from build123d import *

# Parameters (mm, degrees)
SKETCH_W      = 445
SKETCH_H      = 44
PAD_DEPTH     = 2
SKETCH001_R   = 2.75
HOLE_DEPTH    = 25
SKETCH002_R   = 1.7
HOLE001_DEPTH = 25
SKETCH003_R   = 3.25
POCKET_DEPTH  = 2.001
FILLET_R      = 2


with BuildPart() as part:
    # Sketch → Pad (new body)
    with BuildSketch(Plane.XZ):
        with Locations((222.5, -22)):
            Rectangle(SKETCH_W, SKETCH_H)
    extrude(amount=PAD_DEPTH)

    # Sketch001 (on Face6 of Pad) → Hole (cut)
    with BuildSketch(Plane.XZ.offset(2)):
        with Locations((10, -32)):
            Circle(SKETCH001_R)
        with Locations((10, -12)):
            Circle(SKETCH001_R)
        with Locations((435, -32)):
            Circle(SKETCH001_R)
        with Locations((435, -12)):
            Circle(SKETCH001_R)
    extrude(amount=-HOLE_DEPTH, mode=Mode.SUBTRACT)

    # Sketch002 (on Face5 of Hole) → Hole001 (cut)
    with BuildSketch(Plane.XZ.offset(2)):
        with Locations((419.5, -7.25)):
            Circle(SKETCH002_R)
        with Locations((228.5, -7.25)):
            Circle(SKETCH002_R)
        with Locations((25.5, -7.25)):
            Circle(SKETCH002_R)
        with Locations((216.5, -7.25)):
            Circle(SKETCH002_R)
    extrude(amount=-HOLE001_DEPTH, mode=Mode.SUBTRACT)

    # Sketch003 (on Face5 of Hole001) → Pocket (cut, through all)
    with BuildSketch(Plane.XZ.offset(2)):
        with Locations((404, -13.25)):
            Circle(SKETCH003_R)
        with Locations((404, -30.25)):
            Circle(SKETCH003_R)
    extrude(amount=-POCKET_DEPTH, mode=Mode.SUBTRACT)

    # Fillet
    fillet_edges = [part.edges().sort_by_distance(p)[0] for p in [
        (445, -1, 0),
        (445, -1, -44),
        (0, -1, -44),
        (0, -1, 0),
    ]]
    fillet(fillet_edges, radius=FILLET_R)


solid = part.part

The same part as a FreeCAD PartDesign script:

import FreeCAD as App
import Part
import Sketcher
Q = App.Units.Quantity


def edges_at(feature, points):
    """Names of the edges that pass closest to the given points."""
    edges = feature.Shape.Edges
    near = lambda p: min(range(len(edges)), key=lambda i: edges[i].distToShape(Part.Vertex(*p))[0])
    return sorted({f"Edge{near(p) + 1}" for p in points})

doc = App.newDocument("Part")
params = doc.addObject("Spreadsheet::Sheet", "Params")
for row, (alias, value) in enumerate([
    ("sketch1_width", "445 mm"),
    ("sketch1_height", "44 mm"),
    ("pad1_length", "2 mm"),
    ("sketch2_diameter", "5.5 mm"),
    ("pocket1_length", "25 mm"),
    ("sketch3_diameter", "3.4 mm"),
    ("pocket2_length", "25 mm"),
    ("sketch4_diameter", "6.5 mm"),
    ("fillet_radius", "2 mm"),
], start=1):
    params.set(f"A{row}", alias)
    params.set(f"B{row}", "=" + value)
    params.setAlias(f"B{row}", alias)

body = doc.addObject("PartDesign::Body", "Body")

sketch1 = body.newObject("Sketcher::SketchObject", "Sketch")
sketch1.AttachmentSupport = (doc.getObject("XZ_Plane"), [""])
sketch1.MapMode = "FlatFace"
sketch1.addGeometry([
    Part.LineSegment(App.Vector(0, 0, 0), App.Vector(0, -44, 0)),
    Part.LineSegment(App.Vector(0, -44, 0), App.Vector(445, -44, 0)),
    Part.LineSegment(App.Vector(445, -44, 0), App.Vector(445, 0, 0)),
    Part.LineSegment(App.Vector(445, 0, 0), App.Vector(0, 0, 0)),
], False)
sketch1.addConstraint([
    Sketcher.Constraint("Coincident", 0, 2, 1, 1),
    Sketcher.Constraint("Coincident", 1, 2, 2, 1),
    Sketcher.Constraint("Coincident", 2, 2, 3, 1),
    Sketcher.Constraint("Coincident", 3, 2, 0, 1),
    Sketcher.Constraint("Vertical", 0),
    Sketcher.Constraint("Horizontal", 1),
    Sketcher.Constraint("Vertical", 2),
    Sketcher.Constraint("Horizontal", 3),
    Sketcher.Constraint("Coincident", 3, 2, -1, 1),
    Sketcher.Constraint("DistanceX", 1, 1, 1, 2, Q("445 mm")),
    Sketcher.Constraint("DistanceY", 0, 2, 0, 1, Q("44 mm")),
])
sketch1.setExpression("Constraints[9]", "Params.sketch1_width")
sketch1.setExpression("Constraints[10]", "Params.sketch1_height")
pad1 = body.newObject("PartDesign::Pad", "Pad")
pad1.Profile = sketch1
pad1.setExpression("Length", "Params.pad1_length")

sketch2 = body.newObject("Sketcher::SketchObject", "Sketch001")
sketch2.AttachmentSupport = (doc.getObject("XZ_Plane"), [""])
sketch2.MapMode = "FlatFace"
sketch2.AttachmentOffset = App.Placement(App.Vector(0, 0, 2), App.Rotation())
sketch2.addGeometry([
    Part.Circle(App.Vector(10, -32, 0), App.Vector(0, 0, 1), 2.8),
    Part.Circle(App.Vector(10, -12, 0), App.Vector(0, 0, 1), 2.8),
    Part.Circle(App.Vector(435, -32, 0), App.Vector(0, 0, 1), 2.8),
    Part.Circle(App.Vector(435, -12, 0), App.Vector(0, 0, 1), 2.8),
], False)
sketch2.addConstraint([
    Sketcher.Constraint("Equal", 0, 1),
    Sketcher.Constraint("Equal", 1, 2),
    Sketcher.Constraint("Equal", 2, 3),
    Sketcher.Constraint("Horizontal", 0, 3, 2, 3),
    Sketcher.Constraint("Horizontal", 1, 3, 3, 3),
    Sketcher.Constraint("Vertical", 0, 3, 1, 3),
    Sketcher.Constraint("Vertical", 2, 3, 3, 3),
    Sketcher.Constraint("Diameter", 0, Q("5.5 mm")),
    Sketcher.Constraint("DistanceX", -1, 1, 0, 3, Q("10 mm")),
    Sketcher.Constraint("DistanceY", 0, 3, -1, 1, Q("32 mm")),
    Sketcher.Constraint("DistanceY", 1, 3, -1, 1, Q("12 mm")),
    Sketcher.Constraint("DistanceX", -1, 1, 2, 3, Q("435 mm")),
])
sketch2.setExpression("Constraints[7]", "Params.sketch2_diameter")
pocket1 = body.newObject("PartDesign::Pocket", "Pocket")
pocket1.Profile = sketch2
pocket1.setExpression("Length", "Params.pocket1_length")

sketch3 = body.newObject("Sketcher::SketchObject", "Sketch002")
sketch3.AttachmentSupport = (doc.getObject("XZ_Plane"), [""])
sketch3.MapMode = "FlatFace"
sketch3.AttachmentOffset = App.Placement(App.Vector(0, 0, 2), App.Rotation())
sketch3.addGeometry([
    Part.Circle(App.Vector(419.5, -7.2, 0), App.Vector(0, 0, 1), 1.7),
    Part.Circle(App.Vector(228.5, -7.2, 0), App.Vector(0, 0, 1), 1.7),
    Part.Circle(App.Vector(25.5, -7.2, 0), App.Vector(0, 0, 1), 1.7),
    Part.Circle(App.Vector(216.5, -7.2, 0), App.Vector(0, 0, 1), 1.7),
], False)
sketch3.addConstraint([
    Sketcher.Constraint("Equal", 0, 1),
    Sketcher.Constraint("Equal", 1, 2),
    Sketcher.Constraint("Equal", 2, 3),
    Sketcher.Constraint("Horizontal", 0, 3, 1, 3),
    Sketcher.Constraint("Horizontal", 1, 3, 2, 3),
    Sketcher.Constraint("Horizontal", 2, 3, 3, 3),
    Sketcher.Constraint("Diameter", 0, Q("3.4 mm")),
    Sketcher.Constraint("DistanceX", 1, 3, 0, 3, Q("191 mm")),
    Sketcher.Constraint("DistanceX", 2, 3, 1, 3, Q("203 mm")),
    Sketcher.Constraint("DistanceX", 3, 3, 1, 3, Q("12 mm")),
    Sketcher.Constraint("DistanceX", -1, 1, 0, 3, Q("419.5 mm")),
    Sketcher.Constraint("DistanceY", 0, 3, -1, 1, Q("7.25 mm")),
])
sketch3.setExpression("Constraints[6]", "Params.sketch3_diameter")
pocket2 = body.newObject("PartDesign::Pocket", "Pocket001")
pocket2.Profile = sketch3
pocket2.setExpression("Length", "Params.pocket2_length")

sketch4 = body.newObject("Sketcher::SketchObject", "Sketch003")
sketch4.AttachmentSupport = (doc.getObject("XZ_Plane"), [""])
sketch4.MapMode = "FlatFace"
sketch4.AttachmentOffset = App.Placement(App.Vector(0, 0, 2), App.Rotation())
sketch4.addGeometry([
    Part.Circle(App.Vector(404, -13.2, 0), App.Vector(0, 0, 1), 3.2),
    Part.Circle(App.Vector(404, -30.2, 0), App.Vector(0, 0, 1), 3.2),
], False)
sketch4.addConstraint([
    Sketcher.Constraint("Equal", 0, 1),
    Sketcher.Constraint("Vertical", 0, 3, 1, 3),
    Sketcher.Constraint("Diameter", 0, Q("6.5 mm")),
    Sketcher.Constraint("DistanceX", -1, 1, 0, 3, Q("404 mm")),
    Sketcher.Constraint("DistanceY", 1, 3, 0, 3, Q("17 mm")),
    Sketcher.Constraint("DistanceY", 0, 3, -1, 1, Q("13.25 mm")),
])
sketch4.setExpression("Constraints[2]", "Params.sketch4_diameter")
pocket3 = body.newObject("PartDesign::Pocket", "Pocket002")
pocket3.Profile = sketch4
pocket3.Type = "ThroughAll"
doc.recompute()

fillet = body.newObject("PartDesign::Fillet", "Fillet")
fillet.Base = (pocket3, edges_at(pocket3, [
    (445, -1, 0),
    (445, -1, -44),
    (0, -1, -44),
    (0, -1, 0),
]))
fillet.setExpression("Radius", "Params.fillet_radius")

doc.recompute()
